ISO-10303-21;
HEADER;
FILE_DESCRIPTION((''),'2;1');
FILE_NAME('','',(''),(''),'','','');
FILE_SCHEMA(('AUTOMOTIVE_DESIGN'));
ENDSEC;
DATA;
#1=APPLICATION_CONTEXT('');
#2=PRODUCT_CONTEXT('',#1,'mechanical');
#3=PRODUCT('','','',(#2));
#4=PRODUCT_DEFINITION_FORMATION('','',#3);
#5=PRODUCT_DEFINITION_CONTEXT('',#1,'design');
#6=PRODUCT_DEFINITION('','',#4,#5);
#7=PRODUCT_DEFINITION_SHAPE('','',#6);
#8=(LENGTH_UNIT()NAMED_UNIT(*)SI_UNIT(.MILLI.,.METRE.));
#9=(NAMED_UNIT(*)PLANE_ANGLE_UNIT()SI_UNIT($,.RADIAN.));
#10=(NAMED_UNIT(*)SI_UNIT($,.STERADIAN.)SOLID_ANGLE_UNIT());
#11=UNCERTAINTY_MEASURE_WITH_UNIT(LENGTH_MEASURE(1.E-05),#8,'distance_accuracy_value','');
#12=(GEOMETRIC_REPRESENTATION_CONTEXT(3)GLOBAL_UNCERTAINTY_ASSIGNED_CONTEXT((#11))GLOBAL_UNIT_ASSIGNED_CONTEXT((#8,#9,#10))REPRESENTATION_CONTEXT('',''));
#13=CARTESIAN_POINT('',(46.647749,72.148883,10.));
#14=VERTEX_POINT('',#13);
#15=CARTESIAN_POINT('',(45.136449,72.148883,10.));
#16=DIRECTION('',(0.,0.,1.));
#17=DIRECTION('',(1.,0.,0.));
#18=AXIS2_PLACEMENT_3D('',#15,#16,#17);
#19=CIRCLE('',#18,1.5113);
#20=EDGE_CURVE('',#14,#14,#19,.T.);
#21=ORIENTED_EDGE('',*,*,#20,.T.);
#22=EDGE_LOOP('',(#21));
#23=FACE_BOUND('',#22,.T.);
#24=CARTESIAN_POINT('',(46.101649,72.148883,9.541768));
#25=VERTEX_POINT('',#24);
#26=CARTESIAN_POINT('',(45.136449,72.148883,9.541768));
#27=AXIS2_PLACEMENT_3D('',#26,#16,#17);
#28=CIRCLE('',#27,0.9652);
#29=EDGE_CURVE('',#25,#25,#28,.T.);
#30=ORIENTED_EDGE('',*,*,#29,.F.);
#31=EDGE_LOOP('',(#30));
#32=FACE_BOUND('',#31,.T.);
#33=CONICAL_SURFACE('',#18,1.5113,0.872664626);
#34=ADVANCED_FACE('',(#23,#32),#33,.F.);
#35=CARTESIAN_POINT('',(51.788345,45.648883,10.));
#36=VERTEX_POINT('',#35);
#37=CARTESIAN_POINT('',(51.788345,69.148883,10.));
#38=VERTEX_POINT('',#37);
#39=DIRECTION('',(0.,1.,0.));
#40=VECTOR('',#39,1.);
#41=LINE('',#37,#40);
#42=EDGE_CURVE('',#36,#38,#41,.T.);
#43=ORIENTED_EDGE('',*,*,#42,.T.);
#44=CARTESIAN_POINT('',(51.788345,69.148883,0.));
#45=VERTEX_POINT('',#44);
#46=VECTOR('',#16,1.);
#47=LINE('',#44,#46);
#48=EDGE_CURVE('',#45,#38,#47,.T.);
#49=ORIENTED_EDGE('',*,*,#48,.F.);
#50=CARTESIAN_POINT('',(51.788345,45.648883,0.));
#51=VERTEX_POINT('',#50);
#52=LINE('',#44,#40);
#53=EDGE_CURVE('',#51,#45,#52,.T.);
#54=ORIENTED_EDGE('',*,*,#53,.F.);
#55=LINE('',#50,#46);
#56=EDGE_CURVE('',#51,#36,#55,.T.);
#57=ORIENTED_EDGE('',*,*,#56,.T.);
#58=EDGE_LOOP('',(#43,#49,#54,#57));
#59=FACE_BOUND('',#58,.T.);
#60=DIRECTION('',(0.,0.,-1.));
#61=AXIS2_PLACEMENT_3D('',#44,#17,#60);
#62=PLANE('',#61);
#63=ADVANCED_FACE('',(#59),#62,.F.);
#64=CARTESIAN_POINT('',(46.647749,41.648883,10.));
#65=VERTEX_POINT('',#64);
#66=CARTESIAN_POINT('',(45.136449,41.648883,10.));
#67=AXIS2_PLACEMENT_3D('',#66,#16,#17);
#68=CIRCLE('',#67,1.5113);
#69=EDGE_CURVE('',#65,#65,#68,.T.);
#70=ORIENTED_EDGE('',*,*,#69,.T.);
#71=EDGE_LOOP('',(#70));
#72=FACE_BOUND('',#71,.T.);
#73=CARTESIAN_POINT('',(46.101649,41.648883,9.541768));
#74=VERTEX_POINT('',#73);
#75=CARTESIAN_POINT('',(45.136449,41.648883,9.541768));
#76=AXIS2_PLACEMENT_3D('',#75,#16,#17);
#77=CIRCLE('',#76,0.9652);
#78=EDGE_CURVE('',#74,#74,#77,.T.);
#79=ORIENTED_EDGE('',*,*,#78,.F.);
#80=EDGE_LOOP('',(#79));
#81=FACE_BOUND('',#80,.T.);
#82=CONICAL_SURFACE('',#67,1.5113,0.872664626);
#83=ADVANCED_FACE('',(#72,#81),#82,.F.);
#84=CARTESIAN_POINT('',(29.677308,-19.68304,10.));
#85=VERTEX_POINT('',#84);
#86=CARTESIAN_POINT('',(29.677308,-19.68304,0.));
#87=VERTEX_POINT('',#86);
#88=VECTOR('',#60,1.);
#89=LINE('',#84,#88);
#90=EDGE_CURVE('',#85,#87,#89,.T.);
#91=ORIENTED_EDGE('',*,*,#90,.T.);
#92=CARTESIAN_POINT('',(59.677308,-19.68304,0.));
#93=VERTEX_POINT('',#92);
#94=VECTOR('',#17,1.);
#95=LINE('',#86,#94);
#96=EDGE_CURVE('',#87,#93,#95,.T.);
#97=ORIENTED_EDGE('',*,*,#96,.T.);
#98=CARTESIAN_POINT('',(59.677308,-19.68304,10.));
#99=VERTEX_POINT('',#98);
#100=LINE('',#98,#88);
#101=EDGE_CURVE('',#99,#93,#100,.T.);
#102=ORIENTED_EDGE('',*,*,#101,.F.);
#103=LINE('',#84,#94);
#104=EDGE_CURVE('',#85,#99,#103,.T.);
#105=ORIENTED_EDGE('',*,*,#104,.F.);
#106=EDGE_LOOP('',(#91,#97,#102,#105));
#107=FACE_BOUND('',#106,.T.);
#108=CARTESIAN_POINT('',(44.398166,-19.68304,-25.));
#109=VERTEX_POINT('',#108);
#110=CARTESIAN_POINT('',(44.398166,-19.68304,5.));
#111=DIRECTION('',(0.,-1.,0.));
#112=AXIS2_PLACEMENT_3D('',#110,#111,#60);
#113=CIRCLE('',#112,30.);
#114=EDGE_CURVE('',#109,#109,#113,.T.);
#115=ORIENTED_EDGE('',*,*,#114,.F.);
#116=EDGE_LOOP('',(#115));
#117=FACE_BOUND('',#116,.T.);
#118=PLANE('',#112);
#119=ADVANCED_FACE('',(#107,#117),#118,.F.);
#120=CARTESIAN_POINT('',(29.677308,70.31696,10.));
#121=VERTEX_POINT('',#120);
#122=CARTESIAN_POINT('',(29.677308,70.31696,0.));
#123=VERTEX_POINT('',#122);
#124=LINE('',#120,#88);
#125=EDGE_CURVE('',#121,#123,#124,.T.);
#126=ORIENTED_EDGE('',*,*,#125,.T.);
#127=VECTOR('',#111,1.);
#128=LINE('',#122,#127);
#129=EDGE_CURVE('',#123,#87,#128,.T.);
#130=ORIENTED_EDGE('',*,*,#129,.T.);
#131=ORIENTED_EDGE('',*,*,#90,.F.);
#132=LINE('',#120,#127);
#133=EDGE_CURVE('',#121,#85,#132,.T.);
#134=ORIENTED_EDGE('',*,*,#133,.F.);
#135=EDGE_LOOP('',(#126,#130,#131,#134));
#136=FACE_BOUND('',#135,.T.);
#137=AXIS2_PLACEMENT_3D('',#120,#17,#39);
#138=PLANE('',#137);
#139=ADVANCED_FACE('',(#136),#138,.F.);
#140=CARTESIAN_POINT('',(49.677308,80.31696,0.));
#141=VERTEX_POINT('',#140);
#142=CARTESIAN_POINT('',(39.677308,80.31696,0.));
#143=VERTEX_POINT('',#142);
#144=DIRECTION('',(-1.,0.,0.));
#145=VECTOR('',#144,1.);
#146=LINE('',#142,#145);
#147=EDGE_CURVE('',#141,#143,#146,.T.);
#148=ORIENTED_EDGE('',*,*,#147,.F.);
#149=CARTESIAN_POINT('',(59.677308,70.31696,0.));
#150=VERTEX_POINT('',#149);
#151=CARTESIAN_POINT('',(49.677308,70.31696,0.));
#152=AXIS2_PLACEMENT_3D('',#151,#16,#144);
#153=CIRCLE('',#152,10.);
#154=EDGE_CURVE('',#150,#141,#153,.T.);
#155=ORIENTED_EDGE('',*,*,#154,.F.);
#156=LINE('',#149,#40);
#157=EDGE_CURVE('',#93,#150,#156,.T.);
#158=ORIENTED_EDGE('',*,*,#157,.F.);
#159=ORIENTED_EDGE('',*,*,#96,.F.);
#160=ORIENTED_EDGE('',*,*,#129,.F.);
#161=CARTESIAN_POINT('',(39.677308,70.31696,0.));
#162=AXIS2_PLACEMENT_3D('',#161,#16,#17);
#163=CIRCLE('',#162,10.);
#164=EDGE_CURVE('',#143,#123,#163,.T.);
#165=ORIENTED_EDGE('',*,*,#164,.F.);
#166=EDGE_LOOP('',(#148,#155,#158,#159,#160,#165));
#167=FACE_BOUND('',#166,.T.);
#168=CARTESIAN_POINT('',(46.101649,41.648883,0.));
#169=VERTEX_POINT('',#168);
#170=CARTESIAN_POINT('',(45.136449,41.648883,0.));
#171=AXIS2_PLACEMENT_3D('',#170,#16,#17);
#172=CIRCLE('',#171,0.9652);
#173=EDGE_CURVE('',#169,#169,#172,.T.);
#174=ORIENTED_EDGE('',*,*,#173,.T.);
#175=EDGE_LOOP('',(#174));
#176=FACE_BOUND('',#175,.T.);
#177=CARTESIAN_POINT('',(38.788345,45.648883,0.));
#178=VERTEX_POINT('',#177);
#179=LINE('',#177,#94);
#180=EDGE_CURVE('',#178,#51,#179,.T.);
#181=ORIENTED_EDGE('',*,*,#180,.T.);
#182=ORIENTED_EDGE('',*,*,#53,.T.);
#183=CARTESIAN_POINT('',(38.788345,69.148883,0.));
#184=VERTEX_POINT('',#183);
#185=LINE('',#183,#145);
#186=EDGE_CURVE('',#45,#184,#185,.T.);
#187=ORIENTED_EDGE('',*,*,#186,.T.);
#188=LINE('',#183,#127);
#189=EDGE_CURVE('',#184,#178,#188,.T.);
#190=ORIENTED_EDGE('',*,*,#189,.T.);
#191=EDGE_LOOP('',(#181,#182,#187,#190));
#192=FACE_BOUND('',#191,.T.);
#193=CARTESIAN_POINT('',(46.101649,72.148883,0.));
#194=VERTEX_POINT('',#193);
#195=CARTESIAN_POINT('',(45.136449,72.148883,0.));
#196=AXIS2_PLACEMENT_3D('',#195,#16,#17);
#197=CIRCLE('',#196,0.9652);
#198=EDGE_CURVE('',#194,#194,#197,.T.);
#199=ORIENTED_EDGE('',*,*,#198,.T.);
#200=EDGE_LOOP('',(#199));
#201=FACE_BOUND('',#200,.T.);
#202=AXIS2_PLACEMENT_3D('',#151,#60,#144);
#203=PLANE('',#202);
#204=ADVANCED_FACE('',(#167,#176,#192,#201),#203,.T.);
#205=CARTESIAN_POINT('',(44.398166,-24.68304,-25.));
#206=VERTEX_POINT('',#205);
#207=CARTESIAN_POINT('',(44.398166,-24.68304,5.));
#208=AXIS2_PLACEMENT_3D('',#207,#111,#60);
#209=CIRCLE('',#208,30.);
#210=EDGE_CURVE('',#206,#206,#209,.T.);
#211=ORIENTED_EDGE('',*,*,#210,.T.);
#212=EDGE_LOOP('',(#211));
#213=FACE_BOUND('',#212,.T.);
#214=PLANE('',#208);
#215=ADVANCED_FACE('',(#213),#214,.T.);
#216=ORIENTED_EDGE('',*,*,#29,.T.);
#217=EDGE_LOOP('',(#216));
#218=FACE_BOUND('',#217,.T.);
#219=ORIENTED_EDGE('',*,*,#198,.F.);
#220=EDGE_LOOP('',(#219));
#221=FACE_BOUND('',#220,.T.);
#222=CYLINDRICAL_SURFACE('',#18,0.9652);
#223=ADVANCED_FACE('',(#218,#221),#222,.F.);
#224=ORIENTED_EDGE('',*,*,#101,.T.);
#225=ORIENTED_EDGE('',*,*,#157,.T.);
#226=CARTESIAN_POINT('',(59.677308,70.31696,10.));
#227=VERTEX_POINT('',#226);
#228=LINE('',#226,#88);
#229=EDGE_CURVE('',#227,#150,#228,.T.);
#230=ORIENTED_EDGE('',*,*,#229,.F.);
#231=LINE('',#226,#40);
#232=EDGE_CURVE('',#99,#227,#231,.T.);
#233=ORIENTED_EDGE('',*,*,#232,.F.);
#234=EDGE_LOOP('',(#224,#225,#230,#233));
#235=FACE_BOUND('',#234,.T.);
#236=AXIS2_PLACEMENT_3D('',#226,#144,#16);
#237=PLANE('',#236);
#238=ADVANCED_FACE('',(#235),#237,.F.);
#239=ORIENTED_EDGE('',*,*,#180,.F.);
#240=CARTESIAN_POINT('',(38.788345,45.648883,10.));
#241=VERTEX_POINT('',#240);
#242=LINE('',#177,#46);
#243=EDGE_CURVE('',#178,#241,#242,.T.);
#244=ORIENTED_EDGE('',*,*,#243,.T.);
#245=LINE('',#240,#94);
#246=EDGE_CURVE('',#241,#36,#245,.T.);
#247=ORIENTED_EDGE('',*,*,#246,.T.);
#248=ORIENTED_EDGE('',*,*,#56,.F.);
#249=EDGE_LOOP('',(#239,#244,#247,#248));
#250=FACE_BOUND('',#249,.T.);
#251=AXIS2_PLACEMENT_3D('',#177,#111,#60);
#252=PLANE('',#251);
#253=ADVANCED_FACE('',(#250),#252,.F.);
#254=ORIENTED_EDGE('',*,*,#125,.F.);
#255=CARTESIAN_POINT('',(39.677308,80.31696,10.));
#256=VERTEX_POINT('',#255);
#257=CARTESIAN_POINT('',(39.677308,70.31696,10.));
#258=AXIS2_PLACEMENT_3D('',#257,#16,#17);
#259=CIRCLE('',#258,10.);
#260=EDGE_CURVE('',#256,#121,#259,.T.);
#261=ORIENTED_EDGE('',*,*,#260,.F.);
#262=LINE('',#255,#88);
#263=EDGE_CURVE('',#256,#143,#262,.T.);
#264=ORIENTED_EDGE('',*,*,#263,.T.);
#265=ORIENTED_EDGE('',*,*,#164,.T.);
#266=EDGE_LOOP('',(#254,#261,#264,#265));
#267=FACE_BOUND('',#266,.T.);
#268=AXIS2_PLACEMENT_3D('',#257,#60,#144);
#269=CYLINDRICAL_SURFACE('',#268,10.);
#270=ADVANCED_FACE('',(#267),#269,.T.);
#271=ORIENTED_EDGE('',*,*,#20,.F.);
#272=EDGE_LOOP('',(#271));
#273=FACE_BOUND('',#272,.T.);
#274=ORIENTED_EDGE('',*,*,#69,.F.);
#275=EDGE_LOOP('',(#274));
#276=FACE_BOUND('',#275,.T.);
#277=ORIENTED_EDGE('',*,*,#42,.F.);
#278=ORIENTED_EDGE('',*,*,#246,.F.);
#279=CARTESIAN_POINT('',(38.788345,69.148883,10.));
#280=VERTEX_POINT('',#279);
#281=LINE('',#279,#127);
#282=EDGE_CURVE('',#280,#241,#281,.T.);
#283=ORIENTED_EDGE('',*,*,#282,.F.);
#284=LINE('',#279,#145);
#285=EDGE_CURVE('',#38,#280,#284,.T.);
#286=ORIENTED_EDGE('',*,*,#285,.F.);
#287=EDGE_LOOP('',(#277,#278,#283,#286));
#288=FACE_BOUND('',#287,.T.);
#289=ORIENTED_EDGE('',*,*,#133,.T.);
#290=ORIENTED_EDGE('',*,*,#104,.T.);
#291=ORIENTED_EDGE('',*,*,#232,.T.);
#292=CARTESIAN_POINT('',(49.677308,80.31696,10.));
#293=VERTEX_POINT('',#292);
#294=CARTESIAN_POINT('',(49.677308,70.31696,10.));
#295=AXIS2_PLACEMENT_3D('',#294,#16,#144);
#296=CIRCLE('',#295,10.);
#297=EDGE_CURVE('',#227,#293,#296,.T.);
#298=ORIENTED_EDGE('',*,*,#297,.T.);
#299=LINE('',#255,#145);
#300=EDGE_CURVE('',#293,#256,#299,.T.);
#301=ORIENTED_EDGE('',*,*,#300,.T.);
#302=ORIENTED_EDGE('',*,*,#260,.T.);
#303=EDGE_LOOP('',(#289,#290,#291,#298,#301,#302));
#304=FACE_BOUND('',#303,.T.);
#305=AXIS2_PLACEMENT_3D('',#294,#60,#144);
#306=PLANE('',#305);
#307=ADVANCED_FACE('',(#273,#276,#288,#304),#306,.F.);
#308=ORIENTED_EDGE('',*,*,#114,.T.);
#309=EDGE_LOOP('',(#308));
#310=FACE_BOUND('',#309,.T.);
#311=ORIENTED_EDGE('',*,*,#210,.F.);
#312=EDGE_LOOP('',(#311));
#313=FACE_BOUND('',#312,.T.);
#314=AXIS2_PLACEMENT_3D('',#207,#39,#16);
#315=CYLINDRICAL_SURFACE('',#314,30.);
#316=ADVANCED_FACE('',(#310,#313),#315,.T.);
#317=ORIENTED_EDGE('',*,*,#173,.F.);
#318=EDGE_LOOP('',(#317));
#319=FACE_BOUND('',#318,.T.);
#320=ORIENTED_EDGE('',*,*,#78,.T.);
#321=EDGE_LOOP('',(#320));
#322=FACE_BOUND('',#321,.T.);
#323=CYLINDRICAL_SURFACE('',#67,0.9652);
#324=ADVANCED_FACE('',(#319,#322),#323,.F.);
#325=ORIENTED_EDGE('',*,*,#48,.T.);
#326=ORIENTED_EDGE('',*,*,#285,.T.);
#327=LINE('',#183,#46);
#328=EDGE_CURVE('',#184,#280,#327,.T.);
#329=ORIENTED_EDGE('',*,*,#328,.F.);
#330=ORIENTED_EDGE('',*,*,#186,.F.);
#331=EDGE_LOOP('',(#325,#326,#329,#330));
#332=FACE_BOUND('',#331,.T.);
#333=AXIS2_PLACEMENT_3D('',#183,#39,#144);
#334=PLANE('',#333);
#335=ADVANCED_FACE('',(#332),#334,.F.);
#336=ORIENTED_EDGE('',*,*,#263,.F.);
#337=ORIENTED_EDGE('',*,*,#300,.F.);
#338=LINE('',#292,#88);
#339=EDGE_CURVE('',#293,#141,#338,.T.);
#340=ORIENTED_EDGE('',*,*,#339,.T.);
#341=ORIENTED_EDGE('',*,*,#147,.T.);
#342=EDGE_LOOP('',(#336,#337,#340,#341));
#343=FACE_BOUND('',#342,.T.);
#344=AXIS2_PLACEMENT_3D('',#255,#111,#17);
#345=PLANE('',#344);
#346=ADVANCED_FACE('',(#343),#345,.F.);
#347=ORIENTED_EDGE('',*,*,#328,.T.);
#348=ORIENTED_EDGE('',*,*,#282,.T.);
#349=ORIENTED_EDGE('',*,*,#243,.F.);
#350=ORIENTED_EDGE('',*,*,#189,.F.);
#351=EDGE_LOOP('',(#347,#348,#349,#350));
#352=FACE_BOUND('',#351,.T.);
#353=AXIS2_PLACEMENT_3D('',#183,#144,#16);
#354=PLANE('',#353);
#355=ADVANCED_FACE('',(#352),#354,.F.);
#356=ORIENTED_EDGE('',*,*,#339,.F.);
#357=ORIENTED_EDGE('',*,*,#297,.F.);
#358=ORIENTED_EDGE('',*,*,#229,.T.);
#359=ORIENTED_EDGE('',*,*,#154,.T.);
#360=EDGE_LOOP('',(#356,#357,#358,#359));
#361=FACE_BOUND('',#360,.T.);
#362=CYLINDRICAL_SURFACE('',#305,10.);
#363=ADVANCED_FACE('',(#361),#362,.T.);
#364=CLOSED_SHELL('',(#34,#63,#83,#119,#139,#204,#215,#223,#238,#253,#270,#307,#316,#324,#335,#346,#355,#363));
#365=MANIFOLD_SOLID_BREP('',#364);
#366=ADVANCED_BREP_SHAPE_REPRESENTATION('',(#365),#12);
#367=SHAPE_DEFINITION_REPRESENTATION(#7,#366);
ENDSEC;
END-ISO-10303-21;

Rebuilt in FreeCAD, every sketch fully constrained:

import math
import FreeCAD as App
import Part
import Sketcher
from FreeCAD import Vector
Q = App.Units.Quantity

doc = App.newDocument("Part")
body = doc.addObject("PartDesign::Body", "Body")

sketch1 = body.newObject("Sketcher::SketchObject", "Sketch")
sketch1.AttachmentSupport = (doc.getObject("XY_Plane"), [""])
sketch1.MapMode = "FlatFace"
sketch1.addGeometry([
    Part.LineSegment(Vector(50, 80, 0), Vector(40, 80, 0)),
    Part.ArcOfCircle(Part.Circle(Vector(40, 70, 0), Vector(0, 0, 1), 10), math.radians(90), math.radians(180)),
    Part.LineSegment(Vector(30, 70, 0), Vector(30, -20, 0)),
    Part.LineSegment(Vector(30, -20, 0), Vector(60, -20, 0)),
    Part.LineSegment(Vector(60, -20, 0), Vector(60, 70, 0)),
    Part.ArcOfCircle(Part.Circle(Vector(50, 70, 0), Vector(0, 0, 1), 10), math.radians(0), math.radians(90)),
], False)
sketch1.addConstraint([
    Sketcher.Constraint("Tangent", 0, 2, 1, 1),
    Sketcher.Constraint("Tangent", 1, 2, 2, 1),
    Sketcher.Constraint("Coincident", 2, 2, 3, 1),
    Sketcher.Constraint("Coincident", 3, 2, 4, 1),
    Sketcher.Constraint("Tangent", 4, 2, 5, 1),
    Sketcher.Constraint("Tangent", 5, 2, 0, 1),
    Sketcher.Constraint("Horizontal", 0),
    Sketcher.Constraint("Vertical", 2),
    Sketcher.Constraint("Horizontal", 3),
    Sketcher.Constraint("Vertical", 4),
    Sketcher.Constraint("Equal", 1, 5),
    Sketcher.Constraint("Radius", 1, Q("10 mm")),
    Sketcher.Constraint("DistanceX", 0, 2, 0, 1, Q("10 mm")),
    Sketcher.Constraint("DistanceY", 2, 2, 2, 1, Q("90 mm")),
    Sketcher.Constraint("DistanceX", -1, 1, 1, 3, Q("39.677308 mm")),
    Sketcher.Constraint("DistanceY", -1, 1, 1, 3, Q("70.31696 mm")),
])
pad1 = body.newObject("PartDesign::Pad", "Pad")
pad1.Profile = sketch1
pad1.Length = 10

sketch2 = body.newObject("Sketcher::SketchObject", "Sketch001")
sketch2.AttachmentSupport = (doc.getObject("XY_Plane"), [""])
sketch2.MapMode = "FlatFace"
sketch2.AttachmentOffset = App.Placement(Vector(0, 0, 10), App.Rotation())
sketch2.addGeometry([
    Part.LineSegment(Vector(39, 69, 0), Vector(39, 46, 0)),
    Part.LineSegment(Vector(39, 46, 0), Vector(52, 46, 0)),
    Part.LineSegment(Vector(52, 46, 0), Vector(52, 69, 0)),
    Part.LineSegment(Vector(52, 69, 0), Vector(39, 69, 0)),
], False)
sketch2.addConstraint([
    Sketcher.Constraint("Coincident", 0, 2, 1, 1),
    Sketcher.Constraint("Coincident", 1, 2, 2, 1),
    Sketcher.Constraint("Coincident", 2, 2, 3, 1),
    Sketcher.Constraint("Coincident", 3, 2, 0, 1),
    Sketcher.Constraint("Vertical", 0),
    Sketcher.Constraint("Horizontal", 1),
    Sketcher.Constraint("Vertical", 2),
    Sketcher.Constraint("Horizontal", 3),
    Sketcher.Constraint("DistanceX", 1, 1, 1, 2, Q("13 mm")),
    Sketcher.Constraint("DistanceY", 0, 2, 0, 1, Q("23.5 mm")),
    Sketcher.Constraint("DistanceX", -1, 1, 0, 2, Q("38.788345 mm")),
    Sketcher.Constraint("DistanceY", -1, 1, 0, 2, Q("45.648883 mm")),
])
pocket1 = body.newObject("PartDesign::Pocket", "Pocket")
pocket1.Profile = sketch2
pocket1.Type = "ThroughAll"

sketch3 = body.newObject("Sketcher::SketchObject", "Sketch002")
sketch3.AttachmentSupport = (doc.getObject("XY_Plane"), [""])
sketch3.MapMode = "FlatFace"
sketch3.AttachmentOffset = App.Placement(Vector(0, 0, 10), App.Rotation())
sketch3.addGeometry([
    Part.Circle(Vector(45.1, 72.1, 0), Vector(0, 0, 1), 1),
    Part.Circle(Vector(45.1, 41.6, 0), Vector(0, 0, 1), 1),
], False)
sketch3.addConstraint([
    Sketcher.Constraint("Equal", 0, 1),
    Sketcher.Constraint("Vertical", 0, 3, 1, 3),
    Sketcher.Constraint("Diameter", 0, Q("1.9304 mm")),
    Sketcher.Constraint("DistanceY", 1, 3, 0, 3, Q("30.5 mm")),
    Sketcher.Constraint("DistanceX", -1, 1, 0, 3, Q("45.136449 mm")),
    Sketcher.Constraint("DistanceY", -1, 1, 0, 3, Q("72.148883 mm")),
])
doc.recompute()
hole = body.newObject("PartDesign::Hole", "Hole")
hole.Profile = sketch3
hole.ThreadType = "None"
hole.Diameter = 1.9304
hole.DepthType = "ThroughAll"
hole.HoleCutType = "Countersink"
hole.HoleCutDiameter = 3.0226
hole.HoleCutCountersinkAngle = 100

sketch4 = body.newObject("Sketcher::SketchObject", "Sketch003")
sketch4.AttachmentSupport = (doc.getObject("XZ_Plane"), [""])
sketch4.MapMode = "FlatFace"
sketch4.AttachmentOffset = App.Placement(Vector(0, 0, 19.68304), App.Rotation())
sketch4.addGeometry(Part.Circle(Vector(44, 5, 0), Vector(0, 0, 1), 30), False)
sketch4.addConstraint([
    Sketcher.Constraint("Diameter", 0, Q("60 mm")),
    Sketcher.Constraint("DistanceY", -1, 1, 0, 3, Q("5 mm")),
    Sketcher.Constraint("DistanceX", -1, 1, 0, 3, Q("44.398166 mm")),
])
pad2 = body.newObject("PartDesign::Pad", "Pad001")
pad2.Profile = sketch4
pad2.Length = 5

doc.recompute()
